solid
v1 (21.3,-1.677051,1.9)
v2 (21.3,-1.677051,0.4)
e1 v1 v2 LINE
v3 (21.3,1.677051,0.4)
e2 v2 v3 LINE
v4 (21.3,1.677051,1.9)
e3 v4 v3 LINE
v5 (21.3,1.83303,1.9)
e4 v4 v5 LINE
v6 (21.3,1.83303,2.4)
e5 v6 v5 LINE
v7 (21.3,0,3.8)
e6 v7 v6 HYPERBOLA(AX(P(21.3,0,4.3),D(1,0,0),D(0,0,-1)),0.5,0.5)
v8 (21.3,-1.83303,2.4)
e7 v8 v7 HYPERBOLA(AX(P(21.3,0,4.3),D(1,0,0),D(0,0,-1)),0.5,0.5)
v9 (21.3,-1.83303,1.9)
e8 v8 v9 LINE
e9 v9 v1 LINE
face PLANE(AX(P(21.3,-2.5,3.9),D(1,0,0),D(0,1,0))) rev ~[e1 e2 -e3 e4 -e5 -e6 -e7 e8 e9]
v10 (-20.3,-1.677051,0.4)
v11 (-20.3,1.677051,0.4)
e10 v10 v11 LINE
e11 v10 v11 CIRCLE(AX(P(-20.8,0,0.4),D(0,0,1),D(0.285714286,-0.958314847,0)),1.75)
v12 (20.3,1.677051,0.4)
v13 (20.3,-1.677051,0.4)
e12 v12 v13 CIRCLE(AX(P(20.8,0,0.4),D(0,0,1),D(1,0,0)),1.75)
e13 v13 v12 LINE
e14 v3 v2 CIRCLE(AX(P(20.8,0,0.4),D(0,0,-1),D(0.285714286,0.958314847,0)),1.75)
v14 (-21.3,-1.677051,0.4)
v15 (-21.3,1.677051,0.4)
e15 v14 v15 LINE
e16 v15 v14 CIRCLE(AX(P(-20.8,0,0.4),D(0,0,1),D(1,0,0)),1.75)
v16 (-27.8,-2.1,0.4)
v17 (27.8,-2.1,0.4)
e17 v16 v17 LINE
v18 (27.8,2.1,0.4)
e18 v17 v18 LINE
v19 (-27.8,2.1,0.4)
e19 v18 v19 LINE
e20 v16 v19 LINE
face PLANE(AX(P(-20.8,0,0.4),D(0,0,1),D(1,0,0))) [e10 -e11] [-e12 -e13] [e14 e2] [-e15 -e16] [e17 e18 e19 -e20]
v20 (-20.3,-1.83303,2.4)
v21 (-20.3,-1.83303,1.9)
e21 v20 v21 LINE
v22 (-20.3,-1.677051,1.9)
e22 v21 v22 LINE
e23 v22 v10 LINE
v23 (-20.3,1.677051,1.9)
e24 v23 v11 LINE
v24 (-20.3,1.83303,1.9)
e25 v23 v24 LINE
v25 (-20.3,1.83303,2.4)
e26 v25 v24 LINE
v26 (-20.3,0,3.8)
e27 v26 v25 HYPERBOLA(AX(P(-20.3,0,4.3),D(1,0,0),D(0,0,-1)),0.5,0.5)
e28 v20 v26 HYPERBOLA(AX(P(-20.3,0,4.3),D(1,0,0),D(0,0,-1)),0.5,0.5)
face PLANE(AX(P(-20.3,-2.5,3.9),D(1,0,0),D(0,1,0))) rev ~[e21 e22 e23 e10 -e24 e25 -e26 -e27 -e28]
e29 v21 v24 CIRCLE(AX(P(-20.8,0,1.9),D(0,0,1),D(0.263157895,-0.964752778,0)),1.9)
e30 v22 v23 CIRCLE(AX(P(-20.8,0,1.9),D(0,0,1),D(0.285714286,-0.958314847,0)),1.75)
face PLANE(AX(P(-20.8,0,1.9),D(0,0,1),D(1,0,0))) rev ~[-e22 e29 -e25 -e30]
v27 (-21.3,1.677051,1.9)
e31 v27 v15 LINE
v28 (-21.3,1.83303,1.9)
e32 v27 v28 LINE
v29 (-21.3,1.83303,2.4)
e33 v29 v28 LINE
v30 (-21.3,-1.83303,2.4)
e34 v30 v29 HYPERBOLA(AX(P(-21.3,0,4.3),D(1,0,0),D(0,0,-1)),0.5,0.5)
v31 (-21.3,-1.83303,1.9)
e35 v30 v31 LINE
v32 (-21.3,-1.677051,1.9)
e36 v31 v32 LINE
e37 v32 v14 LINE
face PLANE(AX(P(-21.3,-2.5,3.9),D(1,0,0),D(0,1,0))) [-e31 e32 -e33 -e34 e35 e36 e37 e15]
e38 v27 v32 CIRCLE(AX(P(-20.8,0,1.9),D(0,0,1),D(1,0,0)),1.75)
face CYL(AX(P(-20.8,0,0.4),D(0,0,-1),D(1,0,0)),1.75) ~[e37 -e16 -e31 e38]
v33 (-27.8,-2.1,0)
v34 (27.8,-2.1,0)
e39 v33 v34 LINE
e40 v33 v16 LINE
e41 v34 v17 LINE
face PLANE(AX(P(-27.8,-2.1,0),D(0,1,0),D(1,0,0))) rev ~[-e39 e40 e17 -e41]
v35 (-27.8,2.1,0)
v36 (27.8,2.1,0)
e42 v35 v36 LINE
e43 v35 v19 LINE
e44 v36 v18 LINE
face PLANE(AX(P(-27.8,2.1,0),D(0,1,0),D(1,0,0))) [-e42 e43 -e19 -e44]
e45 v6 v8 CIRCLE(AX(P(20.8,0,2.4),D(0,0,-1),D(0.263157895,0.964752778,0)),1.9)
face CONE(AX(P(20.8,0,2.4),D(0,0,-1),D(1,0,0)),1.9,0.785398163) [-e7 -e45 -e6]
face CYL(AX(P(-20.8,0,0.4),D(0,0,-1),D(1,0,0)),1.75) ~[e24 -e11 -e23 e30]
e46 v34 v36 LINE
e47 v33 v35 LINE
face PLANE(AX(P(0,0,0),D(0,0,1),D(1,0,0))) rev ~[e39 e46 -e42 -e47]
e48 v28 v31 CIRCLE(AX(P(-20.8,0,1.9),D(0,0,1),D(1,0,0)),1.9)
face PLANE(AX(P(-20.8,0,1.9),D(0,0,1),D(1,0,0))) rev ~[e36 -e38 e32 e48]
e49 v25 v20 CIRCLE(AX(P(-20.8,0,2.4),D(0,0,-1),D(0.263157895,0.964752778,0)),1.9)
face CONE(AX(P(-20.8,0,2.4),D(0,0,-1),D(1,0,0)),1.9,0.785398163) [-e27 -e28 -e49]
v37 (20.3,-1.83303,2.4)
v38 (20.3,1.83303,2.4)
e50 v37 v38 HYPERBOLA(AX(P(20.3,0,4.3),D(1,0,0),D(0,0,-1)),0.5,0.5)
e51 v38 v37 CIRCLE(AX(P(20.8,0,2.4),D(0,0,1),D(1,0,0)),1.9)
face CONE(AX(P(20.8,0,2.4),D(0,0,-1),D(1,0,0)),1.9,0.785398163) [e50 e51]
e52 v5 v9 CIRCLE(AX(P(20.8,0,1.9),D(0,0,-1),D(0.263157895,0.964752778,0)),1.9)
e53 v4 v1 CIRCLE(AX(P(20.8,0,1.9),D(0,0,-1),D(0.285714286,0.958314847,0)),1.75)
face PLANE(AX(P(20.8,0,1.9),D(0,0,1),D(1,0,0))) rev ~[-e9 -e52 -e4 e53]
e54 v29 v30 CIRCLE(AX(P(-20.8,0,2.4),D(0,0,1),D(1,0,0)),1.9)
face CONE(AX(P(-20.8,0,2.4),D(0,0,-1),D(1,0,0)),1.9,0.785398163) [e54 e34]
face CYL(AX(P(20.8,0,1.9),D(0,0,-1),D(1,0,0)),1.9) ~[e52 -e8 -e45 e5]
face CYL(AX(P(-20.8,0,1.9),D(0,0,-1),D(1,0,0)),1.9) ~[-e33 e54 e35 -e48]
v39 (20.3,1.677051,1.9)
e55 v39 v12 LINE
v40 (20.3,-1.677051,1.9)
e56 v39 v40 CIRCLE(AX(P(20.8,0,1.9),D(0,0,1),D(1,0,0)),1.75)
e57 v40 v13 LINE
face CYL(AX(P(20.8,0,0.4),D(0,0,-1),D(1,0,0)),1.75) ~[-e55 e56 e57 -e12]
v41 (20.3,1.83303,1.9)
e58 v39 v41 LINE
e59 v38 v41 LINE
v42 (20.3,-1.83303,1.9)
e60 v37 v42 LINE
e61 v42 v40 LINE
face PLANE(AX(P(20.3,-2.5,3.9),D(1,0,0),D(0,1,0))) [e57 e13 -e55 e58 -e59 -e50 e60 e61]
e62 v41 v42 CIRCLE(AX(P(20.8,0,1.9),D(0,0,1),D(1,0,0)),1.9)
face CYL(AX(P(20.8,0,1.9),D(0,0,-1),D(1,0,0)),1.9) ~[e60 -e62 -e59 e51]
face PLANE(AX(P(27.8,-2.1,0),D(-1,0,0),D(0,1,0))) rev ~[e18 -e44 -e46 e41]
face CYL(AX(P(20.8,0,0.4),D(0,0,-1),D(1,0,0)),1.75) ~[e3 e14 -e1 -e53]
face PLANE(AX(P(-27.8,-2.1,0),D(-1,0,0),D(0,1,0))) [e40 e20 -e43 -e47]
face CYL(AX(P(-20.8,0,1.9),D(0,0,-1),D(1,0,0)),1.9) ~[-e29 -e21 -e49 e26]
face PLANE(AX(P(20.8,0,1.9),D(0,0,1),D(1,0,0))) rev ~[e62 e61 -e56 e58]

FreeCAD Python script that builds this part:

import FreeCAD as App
import Part
import Sketcher

V = App.Vector
Q = App.Units.Quantity


def edges_at(feature, points):
    """Names of the edges that pass closest to the given points."""
    edges = feature.Shape.Edges
    near = lambda p: min(range(len(edges)), key=lambda i: edges[i].distToShape(Part.Vertex(*p))[0])
    return sorted({f"Edge{near(p) + 1}" for p in points})


def add_polygon(sketch, points):
    """Adds a closed chain of lines whose ends are joined by coincident constraints."""
    first, n = sketch.GeometryCount, len(points)
    for a, b in zip(points, points[1:] + points[:1]):
        sketch.addGeometry(Part.LineSegment(App.Vector(*a, 0), App.Vector(*b, 0)), False)
    for i in range(n):
        sketch.addConstraint(Sketcher.Constraint("Coincident", first + i, 2, first + (i + 1) % n, 1))

doc = App.newDocument("Part")
body = doc.addObject("PartDesign::Body", "Body")

sketch1 = body.newObject("Sketcher::SketchObject", "Sketch")
sketch1.AttachmentSupport = (doc.getObject("XY_Plane"), [""])
sketch1.MapMode = "FlatFace"
add_polygon(sketch1, [(-27.8, 2.1), (-27.8, -2.1), (27.8, -2.1), (27.8, 2.1)])
sketch1.addConstraint([
    Sketcher.Constraint("Vertical", 0),
    Sketcher.Constraint("Horizontal", 1),
    Sketcher.Constraint("Vertical", 2),
    Sketcher.Constraint("Horizontal", 3),
    Sketcher.Constraint("Symmetric", 0, 2, 2, 2, -1, 1),
    Sketcher.Constraint("DistanceX", 1, 1, 1, 2, Q("55.6 mm")),
    Sketcher.Constraint("DistanceY", 0, 2, 0, 1, Q("4.2 mm")),
])
pad1 = body.newObject("PartDesign::Pad", "Pad")
pad1.Profile = sketch1
pad1.Length = 0.4

sketch2 = body.newObject("Sketcher::SketchObject", "Sketch001")
sketch2.AttachmentSupport = (doc.getObject("XY_Plane"), [""])
sketch2.MapMode = "FlatFace"
sketch2.AttachmentOffset = App.Placement(V(0, 0, 0.4), App.Rotation())
sketch2.addGeometry([
    Part.Circle(V(-20.8, 0, 0), V(0, 0, 1), 1.75),
    Part.Circle(V(20.8, 0, 0), V(0, 0, 1), 1.75),
], False)
sketch2.addConstraint([
    Sketcher.Constraint("Equal", 0, 1),
    Sketcher.Constraint("Symmetric", 0, 3, 1, 3, -1, 1),
    Sketcher.Constraint("PointOnObject", 0, 3, -1),
    Sketcher.Constraint("Diameter", 0, Q("3.5 mm")),
    Sketcher.Constraint("DistanceX", 0, 3, -1, 1, Q("20.8 mm")),
])
pad2 = body.newObject("PartDesign::Pad", "Pad001")
pad2.Profile = sketch2
pad2.Length = 1.5

sketch3 = body.newObject("Sketcher::SketchObject", "Sketch002")
sketch3.AttachmentSupport = (doc.getObject("XY_Plane"), [""])
sketch3.MapMode = "FlatFace"
sketch3.AttachmentOffset = App.Placement(V(0, 0, 1.9), App.Rotation())
sketch3.addGeometry([
    Part.Circle(V(-20.8, 0, 0), V(0, 0, 1), 1.9),
    Part.Circle(V(20.8, 0, 0), V(0, 0, 1), 1.9),
], False)
sketch3.addConstraint([
    Sketcher.Constraint("Equal", 0, 1),
    Sketcher.Constraint("Symmetric", 0, 3, 1, 3, -1, 1),
    Sketcher.Constraint("PointOnObject", 0, 3, -1),
    Sketcher.Constraint("Diameter", 0, Q("3.8 mm")),
    Sketcher.Constraint("DistanceX", 0, 3, -1, 1, Q("20.8 mm")),
])
pad3 = body.newObject("PartDesign::Pad", "Pad002")
pad3.Profile = sketch3
pad3.Length = 2
doc.recompute()

chamfer = body.newObject("PartDesign::Chamfer", "Chamfer")
chamfer.Base = (pad3, edges_at(pad3, [(-22.7, 0, 3.9), (18.9, 0, 3.9)]))
chamfer.Size = 1.5

sketch4 = body.newObject("Sketcher::SketchObject", "Sketch003")
sketch4.AttachmentSupport = (doc.getObject("XY_Plane"), [""])
sketch4.MapMode = "FlatFace"
sketch4.AttachmentOffset = App.Placement(V(0, 0, 3.9), App.Rotation())
add_polygon(sketch4, [(-21.3, 2.5), (-21.3, -2.5), (-20.3, -2.5), (-20.3, 2.5)])
add_polygon(sketch4, [(20.3, 2.5), (20.3, -2.5), (21.3, -2.5), (21.3, 2.5)])
sketch4.addConstraint([
    Sketcher.Constraint("Vertical", 0),
    Sketcher.Constraint("Horizontal", 1),
    Sketcher.Constraint("Vertical", 2),
    Sketcher.Constraint("Horizontal", 3),
    Sketcher.Constraint("Vertical", 4),
    Sketcher.Constraint("Horizontal", 5),
    Sketcher.Constraint("Vertical", 6),
    Sketcher.Constraint("Horizontal", 7),
    Sketcher.Constraint("Symmetric", 2, 2, 4, 2, -1, 1),
    Sketcher.Constraint("Symmetric", 0, 2, 6, 2, -1, 1),
    Sketcher.Constraint("Horizontal", 1, 2, 4, 2),
    Sketcher.Constraint("DistanceX", 1, 1, 1, 2, Q("1 mm")),
    Sketcher.Constraint("DistanceY", 0, 2, 0, 1, Q("5 mm")),
    Sketcher.Constraint("DistanceX", 0, 2, -1, 1, Q("21.3 mm")),
])
pocket1 = body.newObject("PartDesign::Pocket", "Pocket")
pocket1.Profile = sketch4
pocket1.Length = 3.5

doc.recompute()
